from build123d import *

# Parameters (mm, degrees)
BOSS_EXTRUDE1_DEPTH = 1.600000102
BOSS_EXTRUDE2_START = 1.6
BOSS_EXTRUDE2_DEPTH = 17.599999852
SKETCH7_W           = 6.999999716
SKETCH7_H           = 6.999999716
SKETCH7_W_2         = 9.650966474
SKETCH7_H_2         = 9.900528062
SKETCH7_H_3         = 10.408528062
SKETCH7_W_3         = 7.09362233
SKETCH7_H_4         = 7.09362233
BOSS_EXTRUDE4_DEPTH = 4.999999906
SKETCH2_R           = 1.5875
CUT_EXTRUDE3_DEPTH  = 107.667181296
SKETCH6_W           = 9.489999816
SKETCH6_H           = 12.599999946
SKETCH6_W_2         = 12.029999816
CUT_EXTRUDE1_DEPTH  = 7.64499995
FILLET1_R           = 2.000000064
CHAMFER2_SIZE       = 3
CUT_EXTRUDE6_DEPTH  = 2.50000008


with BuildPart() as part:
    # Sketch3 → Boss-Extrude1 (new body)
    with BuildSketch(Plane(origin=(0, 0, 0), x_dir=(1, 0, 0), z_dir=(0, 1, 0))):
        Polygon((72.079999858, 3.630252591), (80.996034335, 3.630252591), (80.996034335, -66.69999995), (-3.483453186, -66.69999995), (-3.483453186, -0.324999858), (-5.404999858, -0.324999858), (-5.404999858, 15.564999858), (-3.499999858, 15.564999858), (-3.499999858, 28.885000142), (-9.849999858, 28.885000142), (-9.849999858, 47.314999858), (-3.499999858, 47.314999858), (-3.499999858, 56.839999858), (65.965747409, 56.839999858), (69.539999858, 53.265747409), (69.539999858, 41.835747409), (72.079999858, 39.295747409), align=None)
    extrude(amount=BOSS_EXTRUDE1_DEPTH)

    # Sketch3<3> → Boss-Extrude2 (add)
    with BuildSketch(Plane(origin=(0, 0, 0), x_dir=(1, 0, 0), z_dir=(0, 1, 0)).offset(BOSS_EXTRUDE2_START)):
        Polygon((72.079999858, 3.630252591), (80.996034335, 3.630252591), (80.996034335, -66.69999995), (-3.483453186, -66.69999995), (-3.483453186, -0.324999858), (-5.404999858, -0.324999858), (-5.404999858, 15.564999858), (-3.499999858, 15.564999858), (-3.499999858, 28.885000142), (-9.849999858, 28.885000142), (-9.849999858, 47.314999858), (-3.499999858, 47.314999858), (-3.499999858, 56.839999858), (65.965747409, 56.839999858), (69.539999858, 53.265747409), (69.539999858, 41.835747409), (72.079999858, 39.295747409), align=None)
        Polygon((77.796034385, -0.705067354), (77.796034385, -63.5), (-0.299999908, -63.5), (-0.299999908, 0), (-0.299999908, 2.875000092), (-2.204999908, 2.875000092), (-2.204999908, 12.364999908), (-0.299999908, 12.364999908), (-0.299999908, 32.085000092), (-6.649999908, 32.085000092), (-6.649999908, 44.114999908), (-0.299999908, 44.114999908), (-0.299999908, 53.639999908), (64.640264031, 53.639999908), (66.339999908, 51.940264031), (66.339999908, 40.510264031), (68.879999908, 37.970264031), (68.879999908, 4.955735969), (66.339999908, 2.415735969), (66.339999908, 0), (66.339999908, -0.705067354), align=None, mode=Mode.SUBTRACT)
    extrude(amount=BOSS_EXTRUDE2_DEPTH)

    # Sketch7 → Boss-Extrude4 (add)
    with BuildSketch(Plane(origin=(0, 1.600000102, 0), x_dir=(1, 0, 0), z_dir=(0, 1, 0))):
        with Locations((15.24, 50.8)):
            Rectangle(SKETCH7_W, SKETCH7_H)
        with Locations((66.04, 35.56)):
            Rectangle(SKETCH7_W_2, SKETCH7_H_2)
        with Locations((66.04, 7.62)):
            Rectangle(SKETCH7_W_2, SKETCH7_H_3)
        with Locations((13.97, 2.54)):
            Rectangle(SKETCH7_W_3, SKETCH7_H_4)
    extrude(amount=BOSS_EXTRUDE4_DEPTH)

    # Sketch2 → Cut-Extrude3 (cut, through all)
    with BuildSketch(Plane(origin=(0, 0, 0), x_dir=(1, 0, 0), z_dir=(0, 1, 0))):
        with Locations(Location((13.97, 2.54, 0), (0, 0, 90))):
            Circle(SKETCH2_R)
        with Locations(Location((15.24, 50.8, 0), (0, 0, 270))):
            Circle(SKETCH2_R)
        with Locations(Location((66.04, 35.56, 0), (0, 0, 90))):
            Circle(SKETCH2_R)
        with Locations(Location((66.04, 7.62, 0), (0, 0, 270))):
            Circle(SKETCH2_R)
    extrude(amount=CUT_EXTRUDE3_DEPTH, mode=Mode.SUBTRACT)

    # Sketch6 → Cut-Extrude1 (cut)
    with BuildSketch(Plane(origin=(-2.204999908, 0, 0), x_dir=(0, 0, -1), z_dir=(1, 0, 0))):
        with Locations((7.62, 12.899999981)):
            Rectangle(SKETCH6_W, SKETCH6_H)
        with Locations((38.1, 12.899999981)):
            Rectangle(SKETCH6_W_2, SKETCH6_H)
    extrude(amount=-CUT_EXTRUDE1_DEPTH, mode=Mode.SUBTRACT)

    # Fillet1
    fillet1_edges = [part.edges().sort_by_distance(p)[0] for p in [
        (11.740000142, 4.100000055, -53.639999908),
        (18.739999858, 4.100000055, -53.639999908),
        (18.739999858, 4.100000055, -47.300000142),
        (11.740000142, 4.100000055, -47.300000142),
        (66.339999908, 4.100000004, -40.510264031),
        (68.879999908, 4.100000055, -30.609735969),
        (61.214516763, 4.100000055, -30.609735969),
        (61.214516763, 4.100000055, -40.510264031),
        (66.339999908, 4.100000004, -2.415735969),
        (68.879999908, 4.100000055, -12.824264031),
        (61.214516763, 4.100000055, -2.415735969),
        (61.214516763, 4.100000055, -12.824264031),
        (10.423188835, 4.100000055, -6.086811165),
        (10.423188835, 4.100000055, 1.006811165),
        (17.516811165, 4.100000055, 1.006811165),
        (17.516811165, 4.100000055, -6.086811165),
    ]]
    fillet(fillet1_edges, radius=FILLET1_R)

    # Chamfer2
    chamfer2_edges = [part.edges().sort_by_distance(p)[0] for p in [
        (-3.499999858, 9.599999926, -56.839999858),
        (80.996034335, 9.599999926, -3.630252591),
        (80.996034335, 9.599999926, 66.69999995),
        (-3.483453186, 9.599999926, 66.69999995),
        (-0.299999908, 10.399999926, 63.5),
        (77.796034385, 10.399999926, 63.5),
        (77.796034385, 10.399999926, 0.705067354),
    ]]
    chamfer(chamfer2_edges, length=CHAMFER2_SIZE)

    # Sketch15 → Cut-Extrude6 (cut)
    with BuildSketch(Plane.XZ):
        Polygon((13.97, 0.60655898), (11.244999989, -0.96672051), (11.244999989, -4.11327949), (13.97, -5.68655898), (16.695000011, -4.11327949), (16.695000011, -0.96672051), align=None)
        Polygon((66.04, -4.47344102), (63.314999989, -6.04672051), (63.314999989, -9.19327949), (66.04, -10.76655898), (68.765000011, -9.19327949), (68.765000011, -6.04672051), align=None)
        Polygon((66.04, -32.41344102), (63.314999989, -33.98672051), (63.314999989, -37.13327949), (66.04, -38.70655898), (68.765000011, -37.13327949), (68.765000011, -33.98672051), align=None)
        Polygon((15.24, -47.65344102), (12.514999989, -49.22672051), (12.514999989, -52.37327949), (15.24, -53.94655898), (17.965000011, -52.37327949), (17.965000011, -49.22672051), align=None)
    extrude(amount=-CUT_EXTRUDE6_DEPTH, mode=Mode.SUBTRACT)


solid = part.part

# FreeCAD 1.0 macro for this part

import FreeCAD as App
import Part
import Sketcher
Q = App.Units.Quantity


def edges_at(feature, points):
    """Names of the edges that pass closest to the given points."""
    edges = feature.Shape.Edges
    near = lambda p: min(range(len(edges)), key=lambda i: edges[i].distToShape(Part.Vertex(*p))[0])
    return sorted({f"Edge{near(p) + 1}" for p in points})

doc = App.newDocument("Part")
params = doc.addObject("Spreadsheet::Sheet", "Params")
for row, (alias, value) in enumerate([
    ("sketch1_width", "6.35 mm"),
    ("sketch1_height", "11.43 mm"),
    ("sketch1_height2", "18.43 mm"),
    ("sketch1_height3", "13.32 mm"),
    ("sketch1_height4", "15.89 mm"),
    ("pad1_length", "1.6 mm"),
    ("sketch2_width", "6.35 mm"),
    ("sketch2_height", "11.43 mm"),
    ("sketch2_height2", "18.43 mm"),
    ("sketch2_height3", "13.32 mm"),
    ("sketch2_height4", "15.89 mm"),
    ("pad2_length", "17.6 mm"),
    ("sketch3_width", "7 mm"),
    ("pad3_length", "5 mm"),
    ("sketch5_width", "12.6 mm"),
    ("sketch5_height", "9.49 mm"),
    ("sketch5_height2", "12.03 mm"),
    ("pocket2_length", "7.645 mm"),
    ("fillet_radius", "2 mm"),
    ("chamfer_size", "3 mm"),
    ("pocket3_length", "2.5 mm"),
], start=1):
    params.set(f"A{row}", alias)
    params.set(f"B{row}", "=" + value)
    params.setAlias(f"B{row}", alias)

body = doc.addObject("PartDesign::Body", "Body")

# Sketch on XZ plane
sketch1 = body.newObject("Sketcher::SketchObject", "Sketch")
sketch1.AttachmentSupport = (doc.getObject("XZ_Plane"), [""])
sketch1.MapMode = "FlatFace"
sketch1.addGeometry(Part.LineSegment(App.Vector(81, -3.6, 0), App.Vector(72.1, -3.6, 0)), False)
sketch1.addGeometry(Part.LineSegment(App.Vector(72.1, -3.6, 0), App.Vector(72.1, -39.3, 0)), False)
sketch1.addGeometry(Part.LineSegment(App.Vector(72.1, -39.3, 0), App.Vector(69.5, -41.8, 0)), False)
sketch1.addGeometry(Part.LineSegment(App.Vector(69.5, -41.8, 0), App.Vector(69.5, -53.3, 0)), False)
sketch1.addGeometry(Part.LineSegment(App.Vector(69.5, -53.3, 0), App.Vector(66, -56.8, 0)), False)
sketch1.addGeometry(Part.LineSegment(App.Vector(66, -56.8, 0), App.Vector(-3.5, -56.8, 0)), False)
sketch1.addGeometry(Part.LineSegment(App.Vector(-3.5, -56.8, 0), App.Vector(-3.5, -47.3, 0)), False)
sketch1.addGeometry(Part.LineSegment(App.Vector(-3.5, -47.3, 0), App.Vector(-9.8, -47.3, 0)), False)
sketch1.addGeometry(Part.LineSegment(App.Vector(-9.8, -47.3, 0), App.Vector(-9.8, -28.9, 0)), False)
sketch1.addGeometry(Part.LineSegment(App.Vector(-9.8, -28.9, 0), App.Vector(-3.5, -28.9, 0)), False)
sketch1.addGeometry(Part.LineSegment(App.Vector(-3.5, -28.9, 0), App.Vector(-3.5, -15.6, 0)), False)
sketch1.addGeometry(Part.LineSegment(App.Vector(-3.5, -15.6, 0), App.Vector(-5.4, -15.6, 0)), False)
sketch1.addGeometry(Part.LineSegment(App.Vector(-5.4, -15.6, 0), App.Vector(-5.4, 0.3, 0)), False)
sketch1.addGeometry(Part.LineSegment(App.Vector(-5.4, 0.3, 0), App.Vector(-3.5, 0.3, 0)), False)
sketch1.addGeometry(Part.LineSegment(App.Vector(-3.5, 0.3, 0), App.Vector(-3.5, 66.7, 0)), False)
sketch1.addGeometry(Part.LineSegment(App.Vector(-3.5, 66.7, 0), App.Vector(81, 66.7, 0)), False)
sketch1.addGeometry(Part.LineSegment(App.Vector(81, 66.7, 0), App.Vector(81, -3.6, 0)), False)
sketch1.addConstraint(Sketcher.Constraint("Coincident", 0, 2, 1, 1))
sketch1.addConstraint(Sketcher.Constraint("Coincident", 1, 2, 2, 1))
sketch1.addConstraint(Sketcher.Constraint("Coincident", 2, 2, 3, 1))
sketch1.addConstraint(Sketcher.Constraint("Coincident", 3, 2, 4, 1))
sketch1.addConstraint(Sketcher.Constraint("Coincident", 4, 2, 5, 1))
sketch1.addConstraint(Sketcher.Constraint("Coincident", 5, 2, 6, 1))
sketch1.addConstraint(Sketcher.Constraint("Coincident", 6, 2, 7, 1))
sketch1.addConstraint(Sketcher.Constraint("Coincident", 7, 2, 8, 1))
sketch1.addConstraint(Sketcher.Constraint("Coincident", 8, 2, 9, 1))
sketch1.addConstraint(Sketcher.Constraint("Coincident", 9, 2, 10, 1))
sketch1.addConstraint(Sketcher.Constraint("Coincident", 10, 2, 11, 1))
sketch1.addConstraint(Sketcher.Constraint("Coincident", 11, 2, 12, 1))
sketch1.addConstraint(Sketcher.Constraint("Coincident", 12, 2, 13, 1))
sketch1.addConstraint(Sketcher.Constraint("Coincident", 13, 2, 14, 1))
sketch1.addConstraint(Sketcher.Constraint("Coincident", 14, 2, 15, 1))
sketch1.addConstraint(Sketcher.Constraint("Coincident", 15, 2, 16, 1))
sketch1.addConstraint(Sketcher.Constraint("Coincident", 16, 2, 0, 1))
sketch1.addConstraint(Sketcher.Constraint("Horizontal", 0))
sketch1.addConstraint(Sketcher.Constraint("Vertical", 1))
sketch1.addConstraint(Sketcher.Constraint("Vertical", 3))
sketch1.addConstraint(Sketcher.Constraint("Horizontal", 5))
sketch1.addConstraint(Sketcher.Constraint("Vertical", 6))
sketch1.addConstraint(Sketcher.Constraint("Horizontal", 7))
sketch1.addConstraint(Sketcher.Constraint("Vertical", 8))
sketch1.addConstraint(Sketcher.Constraint("Horizontal", 9))
sketch1.addConstraint(Sketcher.Constraint("Vertical", 10))
sketch1.addConstraint(Sketcher.Constraint("Horizontal", 11))
sketch1.addConstraint(Sketcher.Constraint("Vertical", 12))
sketch1.addConstraint(Sketcher.Constraint("Horizontal", 13))
sketch1.addConstraint(Sketcher.Constraint("Vertical", 14))
sketch1.addConstraint(Sketcher.Constraint("Horizontal", 15))
sketch1.addConstraint(Sketcher.Constraint("Vertical", 16))
sketch1.addConstraint(Sketcher.Constraint("Parallel", 2, 4))
sketch1.addConstraint(Sketcher.Constraint("Vertical", 6, 2, 9, 2))
sketch1.addConstraint(Sketcher.Constraint("Angle", 2, Q("-135 deg")))
sketch1.addConstraint(Sketcher.Constraint("DistanceX", 7, 2, 7, 1, 6.35))
sketch1.addConstraint(Sketcher.Constraint("DistanceY", 3, 2, 3, 1, 11.43))
sketch1.addConstraint(Sketcher.Constraint("DistanceY", 8, 1, 8, 2, 18.43))
sketch1.addConstraint(Sketcher.Constraint("DistanceY", 10, 1, 10, 2, 13.32))
sketch1.addConstraint(Sketcher.Constraint("DistanceY", 12, 1, 12, 2, 15.89))
sketch1.addConstraint(Sketcher.Constraint("DistanceX", 5, 2, -1, 1, 3.5))
sketch1.addConstraint(Sketcher.Constraint("DistanceY", -1, 1, 14, 2, 66.7))
sketch1.addConstraint(Sketcher.Constraint("DistanceX", 11, 2, 11, 1, 1.905))
sketch1.addConstraint(Sketcher.Constraint("DistanceY", 6, 1, 6, 2, 9.525))
sketch1.addConstraint(Sketcher.Constraint("DistanceY", 14, 1, 14, 2, 66.375))
sketch1.addConstraint(Sketcher.Constraint("DistanceX", -1, 1, 0, 2, 72.08))
sketch1.addConstraint(Sketcher.Constraint("DistanceX", -1, 1, 2, 2, 69.54))
sketch1.addConstraint(Sketcher.Constraint("DistanceX", 0, 2, 0, 1, 8.916034))
sketch1.addConstraint(Sketcher.Constraint("DistanceX", 5, 2, 5, 1, 69.465747))
sketch1.addConstraint(Sketcher.Constraint("DistanceX", 13, 1, 13, 2, 1.921547))
sketch1.addConstraint(Sketcher.Constraint("DistanceY", 1, 2, 1, 1, 35.665495))
sketch1.setExpression("Constraints[35]", "Params.sketch1_width")
sketch1.setExpression("Constraints[36]", "Params.sketch1_height")
sketch1.setExpression("Constraints[37]", "Params.sketch1_height2")
sketch1.setExpression("Constraints[38]", "Params.sketch1_height3")
sketch1.setExpression("Constraints[39]", "Params.sketch1_height4")
pad1 = body.newObject("PartDesign::Pad", "Pad")
pad1.Profile = sketch1
pad1.setExpression("Length", "Params.pad1_length")
pad1.Reversed = True

# Sketch on XZ plane
sketch2 = body.newObject("Sketcher::SketchObject", "Sketch001")
sketch2.AttachmentSupport = (doc.getObject("XZ_Plane"), [""])
sketch2.MapMode = "FlatFace"
sketch2.AttachmentOffset = App.Placement(App.Vector(0, 0, -1.6), App.Rotation())
sketch2.addGeometry(Part.LineSegment(App.Vector(81, -3.6, 0), App.Vector(72.1, -3.6, 0)), False)
sketch2.addGeometry(Part.LineSegment(App.Vector(72.1, -3.6, 0), App.Vector(72.1, -39.3, 0)), False)
sketch2.addGeometry(Part.LineSegment(App.Vector(72.1, -39.3, 0), App.Vector(69.5, -41.8, 0)), False)
sketch2.addGeometry(Part.LineSegment(App.Vector(69.5, -41.8, 0), App.Vector(69.5, -53.3, 0)), False)
sketch2.addGeometry(Part.LineSegment(App.Vector(69.5, -53.3, 0), App.Vector(66, -56.8, 0)), False)
sketch2.addGeometry(Part.LineSegment(App.Vector(66, -56.8, 0), App.Vector(-3.5, -56.8, 0)), False)
sketch2.addGeometry(Part.LineSegment(App.Vector(-3.5, -56.8, 0), App.Vector(-3.5, -47.3, 0)), False)
sketch2.addGeometry(Part.LineSegment(App.Vector(-3.5, -47.3, 0), App.Vector(-9.8, -47.3, 0)), False)
sketch2.addGeometry(Part.LineSegment(App.Vector(-9.8, -47.3, 0), App.Vector(-9.8, -28.9, 0)), False)
sketch2.addGeometry(Part.LineSegment(App.Vector(-9.8, -28.9, 0), App.Vector(-3.5, -28.9, 0)), False)
sketch2.addGeometry(Part.LineSegment(App.Vector(-3.5, -28.9, 0), App.Vector(-3.5, -15.6, 0)), False)
sketch2.addGeometry(Part.LineSegment(App.Vector(-3.5, -15.6, 0), App.Vector(-5.4, -15.6, 0)), False)
sketch2.addGeometry(Part.LineSegment(App.Vector(-5.4, -15.6, 0), App.Vector(-5.4, 0.3, 0)), False)
sketch2.addGeometry(Part.LineSegment(App.Vector(-5.4, 0.3, 0), App.Vector(-3.5, 0.3, 0)), False)
sketch2.addGeometry(Part.LineSegment(App.Vector(-3.5, 0.3, 0), App.Vector(-3.5, 66.7, 0)), False)
sketch2.addGeometry(Part.LineSegment(App.Vector(-3.5, 66.7, 0), App.Vector(81, 66.7, 0)), False)
sketch2.addGeometry(Part.LineSegment(App.Vector(81, 66.7, 0), App.Vector(81, -3.6, 0)), False)
sketch2.addGeometry(Part.LineSegment(App.Vector(77.8, 0.7, 0), App.Vector(77.8, 63.5, 0)), False)
sketch2.addGeometry(Part.LineSegment(App.Vector(77.8, 63.5, 0), App.Vector(-0.3, 63.5, 0)), False)
sketch2.addGeometry(Part.LineSegment(App.Vector(-0.3, 63.5, 0), App.Vector(-0.3, -2.9, 0)), False)
sketch2.addGeometry(Part.LineSegment(App.Vector(-0.3, -2.9, 0), App.Vector(-2.2, -2.9, 0)), False)
sketch2.addGeometry(Part.LineSegment(App.Vector(-2.2, -2.9, 0), App.Vector(-2.2, -12.4, 0)), False)
sketch2.addGeometry(Part.LineSegment(App.Vector(-2.2, -12.4, 0), App.Vector(-0.3, -12.4, 0)), False)
sketch2.addGeometry(Part.LineSegment(App.Vector(-0.3, -12.4, 0), App.Vector(-0.3, -32.1, 0)), False)
sketch2.addGeometry(Part.LineSegment(App.Vector(-0.3, -32.1, 0), App.Vector(-6.6, -32.1, 0)), False)
sketch2.addGeometry(Part.LineSegment(App.Vector(-6.6, -32.1, 0), App.Vector(-6.6, -44.1, 0)), False)
sketch2.addGeometry(Part.LineSegment(App.Vector(-6.6, -44.1, 0), App.Vector(-0.3, -44.1, 0)), False)
sketch2.addGeometry(Part.LineSegment(App.Vector(-0.3, -44.1, 0), App.Vector(-0.3, -53.6, 0)), False)
sketch2.addGeometry(Part.LineSegment(App.Vector(-0.3, -53.6, 0), App.Vector(64.6, -53.6, 0)), False)
sketch2.addGeometry(Part.LineSegment(App.Vector(64.6, -53.6, 0), App.Vector(66.3, -51.9, 0)), False)
sketch2.addGeometry(Part.LineSegment(App.Vector(66.3, -51.9, 0), App.Vector(66.3, -40.5, 0)), False)
sketch2.addGeometry(Part.LineSegment(App.Vector(66.3, -40.5, 0), App.Vector(68.9, -38, 0)), False)
sketch2.addGeometry(Part.LineSegment(App.Vector(68.9, -38, 0), App.Vector(68.9, -5, 0)), False)
sketch2.addGeometry(Part.LineSegment(App.Vector(68.9, -5, 0), App.Vector(66.3, -2.4, 0)), False)
sketch2.addGeometry(Part.LineSegment(App.Vector(66.3, -2.4, 0), App.Vector(66.3, 0.7, 0)), False)
sketch2.addGeometry(Part.LineSegment(App.Vector(66.3, 0.7, 0), App.Vector(77.8, 0.7, 0)), False)
sketch2.addConstraint(Sketcher.Constraint("Coincident", 0, 2, 1, 1))
sketch2.addConstraint(Sketcher.Constraint("Coincident", 1, 2, 2, 1))
sketch2.addConstraint(Sketcher.Constraint("Coincident", 2, 2, 3, 1))
sketch2.addConstraint(Sketcher.Constraint("Coincident", 3, 2, 4, 1))
sketch2.addConstraint(Sketcher.Constraint("Coincident", 4, 2, 5, 1))
sketch2.addConstraint(Sketcher.Constraint("Coincident", 5, 2, 6, 1))
sketch2.addConstraint(Sketcher.Constraint("Coincident", 6, 2, 7, 1))
sketch2.addConstraint(Sketcher.Constraint("Coincident", 7, 2, 8, 1))
sketch2.addConstraint(Sketcher.Constraint("Coincident", 8, 2, 9, 1))
sketch2.addConstraint(Sketcher.Constraint("Coincident", 9, 2, 10, 1))
sketch2.addConstraint(Sketcher.Constraint("Coincident", 10, 2, 11, 1))
sketch2.addConstraint(Sketcher.Constraint("Coincident", 11, 2, 12, 1))
sketch2.addConstraint(Sketcher.Constraint("Coincident", 12, 2, 13, 1))
sketch2.addConstraint(Sketcher.Constraint("Coincident", 13, 2, 14, 1))
sketch2.addConstraint(Sketcher.Constraint("Coincident", 14, 2, 15, 1))
sketch2.addConstraint(Sketcher.Constraint("Coincident", 15, 2, 16, 1))
sketch2.addConstraint(Sketcher.Constraint("Coincident", 16, 2, 0, 1))
sketch2.addConstraint(Sketcher.Constraint("Coincident", 17, 2, 18, 1))
sketch2.addConstraint(Sketcher.Constraint("Coincident", 18, 2, 19, 1))
sketch2.addConstraint(Sketcher.Constraint("Coincident", 19, 2, 20, 1))
sketch2.addConstraint(Sketcher.Constraint("Coincident", 20, 2, 21, 1))
sketch2.addConstraint(Sketcher.Constraint("Coincident", 21, 2, 22, 1))
sketch2.addConstraint(Sketcher.Constraint("Coincident", 22, 2, 23, 1))
sketch2.addConstraint(Sketcher.Constraint("Coincident", 23, 2, 24, 1))
sketch2.addConstraint(Sketcher.Constraint("Coincident", 24, 2, 25, 1))
sketch2.addConstraint(Sketcher.Constraint("Coincident", 25, 2, 26, 1))
sketch2.addConstraint(Sketcher.Constraint("Coincident", 26, 2, 27, 1))
sketch2.addConstraint(Sketcher.Constraint("Coincident", 27, 2, 28, 1))
sketch2.addConstraint(Sketcher.Constraint("Coincident", 28, 2, 29, 1))
sketch2.addConstraint(Sketcher.Constraint("Coincident", 29, 2, 30, 1))
sketch2.addConstraint(Sketcher.Constraint("Coincident", 30, 2, 31, 1))
sketch2.addConstraint(Sketcher.Constraint("Coincident", 31, 2, 32, 1))
sketch2.addConstraint(Sketcher.Constraint("Coincident", 32, 2, 33, 1))
sketch2.addConstraint(Sketcher.Constraint("Coincident", 33, 2, 34, 1))
sketch2.addConstraint(Sketcher.Constraint("Coincident", 34, 2, 35, 1))
sketch2.addConstraint(Sketcher.Constraint("Coincident", 35, 2, 17, 1))
sketch2.addConstraint(Sketcher.Constraint("Horizontal", 0))
sketch2.addConstraint(Sketcher.Constraint("Vertical", 1))
sketch2.addConstraint(Sketcher.Constraint("Vertical", 3))
sketch2.addConstraint(Sketcher.Constraint("Horizontal", 5))
sketch2.addConstraint(Sketcher.Constraint("Vertical", 6))
sketch2.addConstraint(Sketcher.Constraint("Horizontal", 7))
sketch2.addConstraint(Sketcher.Constraint("Vertical", 8))
sketch2.addConstraint(Sketcher.Constraint("Horizontal", 9))
sketch2.addConstraint(Sketcher.Constraint("Vertical", 10))
sketch2.addConstraint(Sketcher.Constraint("Horizontal", 11))
sketch2.addConstraint(Sketcher.Constraint("Vertical", 12))
sketch2.addConstraint(Sketcher.Constraint("Horizontal", 13))
sketch2.addConstraint(Sketcher.Constraint("Vertical", 14))
sketch2.addConstraint(Sketcher.Constraint("Horizontal", 15))
sketch2.addConstraint(Sketcher.Constraint("Vertical", 16))
sketch2.addConstraint(Sketcher.Constraint("Vertical", 17))
sketch2.addConstraint(Sketcher.Constraint("Horizontal", 18))
sketch2.addConstraint(Sketcher.Constraint("Vertical", 19))
sketch2.addConstraint(Sketcher.Constraint("Horizontal", 20))
sketch2.addConstraint(Sketcher.Constraint("Vertical", 21))
sketch2.addConstraint(Sketcher.Constraint("Horizontal", 22))
sketch2.addConstraint(Sketcher.Constraint("Vertical", 23))
sketch2.addConstraint(Sketcher.Constraint("Horizontal", 24))
sketch2.addConstraint(Sketcher.Constraint("Vertical", 25))
sketch2.addConstraint(Sketcher.Constraint("Horizontal", 26))
sketch2.addConstraint(Sketcher.Constraint("Vertical", 27))
sketch2.addConstraint(Sketcher.Constraint("Horizontal", 28))
sketch2.addConstraint(Sketcher.Constraint("Vertical", 30))
sketch2.addConstraint(Sketcher.Constraint("Vertical", 32))
sketch2.addConstraint(Sketcher.Constraint("Vertical", 34))
sketch2.addConstraint(Sketcher.Constraint("Horizontal", 35))
sketch2.addConstraint(Sketcher.Constraint("Parallel", 2, 4))
sketch2.addConstraint(Sketcher.Constraint("Parallel", 4, 29))
sketch2.addConstraint(Sketcher.Constraint("Parallel", 29, 31))
sketch2.addConstraint(Sketcher.Constraint("Perpendicular", 31, 33))
sketch2.addConstraint(Sketcher.Constraint("Vertical", 6, 2, 9, 2))
sketch2.addConstraint(Sketcher.Constraint("Vertical", 19, 2, 22, 2))
sketch2.addConstraint(Sketcher.Constraint("Vertical", 23, 2, 26, 2))
sketch2.addConstraint(Sketcher.Constraint("Vertical", 30, 2, 33, 2))
sketch2.addConstraint(Sketcher.Constraint("Equal", 11, 20))
sketch2.addConstraint(Sketcher.Constraint("Equal", 9, 24))
sketch2.addConstraint(Sketcher.Constraint("Equal", 14, 19))
sketch2.addConstraint(Sketcher.Constraint("Equal", 6, 27))
sketch2.addConstraint(Sketcher.Constraint("Equal", 3, 30))
sketch2.addConstraint(Sketcher.Constraint("Equal", 2, 31))
sketch2.addConstraint(Sketcher.Constraint("Equal", 31, 33))
sketch2.addConstraint(Sketcher.Constraint("DistanceX", 7, 2, 7, 1, 6.35))
sketch2.addConstraint(Sketcher.Constraint("DistanceY", 3, 2, 3, 1, 11.43))
sketch2.addConstraint(Sketcher.Constraint("DistanceY", 8, 1, 8, 2, 18.43))
sketch2.addConstraint(Sketcher.Constraint("DistanceY", 10, 1, 10, 2, 13.32))
sketch2.addConstraint(Sketcher.Constraint("DistanceY", 12, 1, 12, 2, 15.89))
sketch2.addConstraint(Sketcher.Constraint("DistanceY", 21, 2, 21, 1, 9.49))
sketch2.addConstraint(Sketcher.Constraint("DistanceY", 23, 2, 23, 1, 19.72))
sketch2.addConstraint(Sketcher.Constraint("DistanceY", 25, 2, 25, 1, 12.03))
sketch2.addConstraint(Sketcher.Constraint("DistanceX", 5, 2, -1, 1, 3.5))
sketch2.addConstraint(Sketcher.Constraint("DistanceY", -1, 1, 14, 2, 66.7))
sketch2.addConstraint(Sketcher.Constraint("DistanceY", -1, 1, 17, 2, 63.5))
sketch2.addConstraint(Sketcher.Constraint("DistanceX", 18, 2, -1, 1, 0.3))
sketch2.addConstraint(Sketcher.Constraint("DistanceX", 17, 2, 15, 2, 3.2))
sketch2.addConstraint(Sketcher.Constraint("DistanceX", 29, 2, 3, 2, 3.2))
sketch2.addConstraint(Sketcher.Constraint("DistanceX", 11, 2, 11, 1, 1.905))
sketch2.addConstraint(Sketcher.Constraint("DistanceY", 6, 1, 6, 2, 9.525))
sketch2.addConstraint(Sketcher.Constraint("DistanceY", 14, 1, 14, 2, 66.375))
sketch2.addConstraint(Sketcher.Constraint("DistanceX", -1, 1, 0, 2, 72.08))
sketch2.addConstraint(Sketcher.Constraint("DistanceX", -1, 1, 2, 2, 69.54))
sketch2.addConstraint(Sketcher.Constraint("DistanceY", 32, 1, 32, 2, 33.014528))
sketch2.addConstraint(Sketcher.Constraint("Distance", 29, 2.40379))
sketch2.addConstraint(Sketcher.Constraint("DistanceX", 0, 2, 0, 1, 8.916034))
sketch2.addConstraint(Sketcher.Constraint("DistanceX", 5, 2, 5, 1, 69.465747))
sketch2.addConstraint(Sketcher.Constraint("DistanceX", 13, 1, 13, 2, 1.921547))
sketch2.addConstraint(Sketcher.Constraint("DistanceY", 1, 2, 1, 1, 35.665495))
sketch2.addConstraint(Sketcher.Constraint("DistanceY", 17, 1, 17, 2, 62.794933))
sketch2.setExpression("Constraints[82]", "Params.sketch2_width")
sketch2.setExpression("Constraints[83]", "Params.sketch2_height")
sketch2.setExpression("Constraints[84]", "Params.sketch2_height2")
sketch2.setExpression("Constraints[85]", "Params.sketch2_height3")
sketch2.setExpression("Constraints[86]", "Params.sketch2_height4")
pad2 = body.newObject("PartDesign::Pad", "Pad001")
pad2.Profile = sketch2
pad2.setExpression("Length", "Params.pad2_length")
pad2.Reversed = True

# Sketch on XZ plane
sketch3 = body.newObject("Sketcher::SketchObject", "Sketch002")
sketch3.AttachmentSupport = (doc.getObject("XZ_Plane"), [""])
sketch3.MapMode = "FlatFace"
sketch3.AttachmentOffset = App.Placement(App.Vector(0, 0, -1.6), App.Rotation())
sketch3.addGeometry(Part.LineSegment(App.Vector(12, -54, 0), App.Vector(12, -47, 0)), False)
sketch3.addGeometry(Part.LineSegment(App.Vector(12, -47, 0), App.Vector(19, -47, 0)), False)
sketch3.addGeometry(Part.LineSegment(App.Vector(19, -47, 0), App.Vector(19, -54, 0)), False)
sketch3.addGeometry(Part.LineSegment(App.Vector(19, -54, 0), App.Vector(12, -54, 0)), False)
sketch3.addGeometry(Part.LineSegment(App.Vector(61, -41, 0), App.Vector(61, -31, 0)), False)
sketch3.addGeometry(Part.LineSegment(App.Vector(61, -31, 0), App.Vector(71, -31, 0)), False)
sketch3.addGeometry(Part.LineSegment(App.Vector(71, -31, 0), App.Vector(71, -41, 0)), False)
sketch3.addGeometry(Part.LineSegment(App.Vector(71, -41, 0), App.Vector(61, -41, 0)), False)
sketch3.addGeometry(Part.LineSegment(App.Vector(61, -13, 0), App.Vector(61, -2, 0)), False)
sketch3.addGeometry(Part.LineSegment(App.Vector(61, -2, 0), App.Vector(71, -2, 0)), False)
sketch3.addGeometry(Part.LineSegment(App.Vector(71, -2, 0), App.Vector(71, -13, 0)), False)
sketch3.addGeometry(Part.LineSegment(App.Vector(71, -13, 0), App.Vector(61, -13, 0)), False)
sketch3.addGeometry(Part.LineSegment(App.Vector(10, -6, 0), App.Vector(10, 1, 0)), False)
sketch3.addGeometry(Part.LineSegment(App.Vector(10, 1, 0), App.Vector(18, 1, 0)), False)
sketch3.addGeometry(Part.LineSegment(App.Vector(18, 1, 0), App.Vector(18, -6, 0)), False)
sketch3.addGeometry(Part.LineSegment(App.Vector(18, -6, 0), App.Vector(10, -6, 0)), False)
sketch3.addConstraint(Sketcher.Constraint("Coincident", 0, 2, 1, 1))
sketch3.addConstraint(Sketcher.Constraint("Coincident", 1, 2, 2, 1))
sketch3.addConstraint(Sketcher.Constraint("Coincident", 2, 2, 3, 1))
sketch3.addConstraint(Sketcher.Constraint("Coincident", 3, 2, 0, 1))
sketch3.addConstraint(Sketcher.Constraint("Coincident", 4, 2, 5, 1))
sketch3.addConstraint(Sketcher.Constraint("Coincident", 5, 2, 6, 1))
sketch3.addConstraint(Sketcher.Constraint("Coincident", 6, 2, 7, 1))
sketch3.addConstraint(Sketcher.Constraint("Coincident", 7, 2, 4, 1))
sketch3.addConstraint(Sketcher.Constraint("Coincident", 8, 2, 9, 1))
sketch3.addConstraint(Sketcher.Constraint("Coincident", 9, 2, 10, 1))
sketch3.addConstraint(Sketcher.Constraint("Coincident", 10, 2, 11, 1))
sketch3.addConstraint(Sketcher.Constraint("Coincident", 11, 2, 8, 1))
sketch3.addConstraint(Sketcher.Constraint("Coincident", 12, 2, 13, 1))
sketch3.addConstraint(Sketcher.Constraint("Coincident", 13, 2, 14, 1))
sketch3.addConstraint(Sketcher.Constraint("Coincident", 14, 2, 15, 1))
sketch3.addConstraint(Sketcher.Constraint("Coincident", 15, 2, 12, 1))
sketch3.addConstraint(Sketcher.Constraint("Vertical", 0))
sketch3.addConstraint(Sketcher.Constraint("Horizontal", 1))
sketch3.addConstraint(Sketcher.Constraint("Vertical", 2))
sketch3.addConstraint(Sketcher.Constraint("Horizontal", 3))
sketch3.addConstraint(Sketcher.Constraint("Vertical", 4))
sketch3.addConstraint(Sketcher.Constraint("Horizontal", 5))
sketch3.addConstraint(Sketcher.Constraint("Vertical", 6))
sketch3.addConstraint(Sketcher.Constraint("Horizontal", 7))
sketch3.addConstraint(Sketcher.Constraint("Vertical", 8))
sketch3.addConstraint(Sketcher.Constraint("Horizontal", 9))
sketch3.addConstraint(Sketcher.Constraint("Vertical", 10))
sketch3.addConstraint(Sketcher.Constraint("Horizontal", 11))
sketch3.addConstraint(Sketcher.Constraint("Vertical", 12))
sketch3.addConstraint(Sketcher.Constraint("Horizontal", 13))
sketch3.addConstraint(Sketcher.Constraint("Vertical", 14))
sketch3.addConstraint(Sketcher.Constraint("Horizontal", 15))
sketch3.addConstraint(Sketcher.Constraint("Vertical", 7, 2, 8, 2))
sketch3.addConstraint(Sketcher.Constraint("Vertical", 6, 2, 9, 2))
sketch3.addConstraint(Sketcher.Constraint("Equal", 3, 0))
sketch3.addConstraint(Sketcher.Constraint("Equal", 15, 12))
sketch3.addConstraint(Sketcher.Constraint("DistanceX", 1, 1, 1, 2, 7.0))
sketch3.addConstraint(Sketcher.Constraint("DistanceY", 0, 2, -1, 1, 47.3))
sketch3.addConstraint(Sketcher.Constraint("DistanceX", -1, 1, 0, 2, 11.74))
sketch3.addConstraint(Sketcher.Constraint("DistanceY", 4, 2, 8, 2, 28.194))
sketch3.addConstraint(Sketcher.Constraint("DistanceY", 6, 2, 10, 2, 27.686))
sketch3.addConstraint(Sketcher.Constraint("DistanceY", 4, 1, 4, 2, 9.900528))
sketch3.addConstraint(Sketcher.Constraint("DistanceX", 5, 1, 5, 2, 9.650966))
sketch3.addConstraint(Sketcher.Constraint("DistanceX", 13, 1, 13, 2, 7.093622))
sketch3.addConstraint(Sketcher.Constraint("DistanceX", -1, 1, 12, 2, 10.423189))
sketch3.addConstraint(Sketcher.Constraint("DistanceY", -1, 1, 12, 2, 1.006811))
sketch3.addConstraint(Sketcher.Constraint("DistanceX", -1, 1, 4, 2, 61.214517))
sketch3.addConstraint(Sketcher.Constraint("DistanceY", 4, 2, -1, 1, 30.609736))
sketch3.setExpression("Constraints[36]", "Params.sketch3_width")
pad3 = body.newObject("PartDesign::Pad", "Pad002")
pad3.Profile = sketch3
pad3.setExpression("Length", "Params.pad3_length")
pad3.Reversed = True

# Sketch on XZ plane
sketch4 = body.newObject("Sketcher::SketchObject", "Sketch003")
sketch4.AttachmentSupport = (doc.getObject("XZ_Plane"), [""])
sketch4.MapMode = "FlatFace"
sketch4.addGeometry(Part.Circle(App.Vector(14, -2.5, 0), App.Vector(0, 0, 1), 1.6), False)
sketch4.addGeometry(Part.Circle(App.Vector(15.2, -50.8, 0), App.Vector(0, 0, 1), 1.6), False)
sketch4.addGeometry(Part.Circle(App.Vector(66, -35.6, 0), App.Vector(0, 0, 1), 1.6), False)
sketch4.addGeometry(Part.Circle(App.Vector(66, -7.6, 0), App.Vector(0, 0, 1), 1.6), False)
sketch4.addConstraint(Sketcher.Constraint("Equal", 0, 1))
sketch4.addConstraint(Sketcher.Constraint("Equal", 1, 2))
sketch4.addConstraint(Sketcher.Constraint("Equal", 2, 3))
sketch4.addConstraint(Sketcher.Constraint("Vertical", 2, 3, 3, 3))
sketch4.addConstraint(Sketcher.Constraint("Diameter", 0, 3.175))
sketch4.addConstraint(Sketcher.Constraint("DistanceY", 1, 3, -1, 1, 50.8))
sketch4.addConstraint(Sketcher.Constraint("DistanceX", 1, 3, 2, 3, 50.8))
sketch4.addConstraint(Sketcher.Constraint("DistanceX", -1, 1, 0, 3, 13.97))
sketch4.addConstraint(Sketcher.Constraint("DistanceY", 0, 3, -1, 1, 2.54))
sketch4.addConstraint(Sketcher.Constraint("DistanceX", -1, 1, 1, 3, 15.24))
sketch4.addConstraint(Sketcher.Constraint("DistanceY", 2, 3, -1, 1, 35.56))
sketch4.addConstraint(Sketcher.Constraint("DistanceY", 3, 3, -1, 1, 7.62))
pocket1 = body.newObject("PartDesign::Pocket", "Pocket")
pocket1.Profile = sketch4
pocket1.Type = "ThroughAll"

# Sketch on YZ plane
sketch5 = body.newObject("Sketcher::SketchObject", "Sketch004")
sketch5.AttachmentSupport = (doc.getObject("YZ_Plane"), [""])
sketch5.MapMode = "FlatFace"
sketch5.AttachmentOffset = App.Placement(App.Vector(0, 0, -2.205), App.Rotation())
sketch5.addGeometry(Part.LineSegment(App.Vector(19, -3, 0), App.Vector(7, -3, 0)), False)
sketch5.addGeometry(Part.LineSegment(App.Vector(7, -3, 0), App.Vector(7, -12, 0)), False)
sketch5.addGeometry(Part.LineSegment(App.Vector(7, -12, 0), App.Vector(19, -12, 0)), False)
sketch5.addGeometry(Part.LineSegment(App.Vector(19, -12, 0), App.Vector(19, -3, 0)), False)
sketch5.addGeometry(Part.LineSegment(App.Vector(19, -32, 0), App.Vector(7, -32, 0)), False)
sketch5.addGeometry(Part.LineSegment(App.Vector(7, -32, 0), App.Vector(7, -44, 0)), False)
sketch5.addGeometry(Part.LineSegment(App.Vector(7, -44, 0), App.Vector(19, -44, 0)), False)
sketch5.addGeometry(Part.LineSegment(App.Vector(19, -44, 0), App.Vector(19, -32, 0)), False)
sketch5.addConstraint(Sketcher.Constraint("Coincident", 0, 2, 1, 1))
sketch5.addConstraint(Sketcher.Constraint("Coincident", 1, 2, 2, 1))
sketch5.addConstraint(Sketcher.Constraint("Coincident", 2, 2, 3, 1))
sketch5.addConstraint(Sketcher.Constraint("Coincident", 3, 2, 0, 1))
sketch5.addConstraint(Sketcher.Constraint("Coincident", 4, 2, 5, 1))
sketch5.addConstraint(Sketcher.Constraint("Coincident", 5, 2, 6, 1))
sketch5.addConstraint(Sketcher.Constraint("Coincident", 6, 2, 7, 1))
sketch5.addConstraint(Sketcher.Constraint("Coincident", 7, 2, 4, 1))
sketch5.addConstraint(Sketcher.Constraint("Horizontal", 0))
sketch5.addConstraint(Sketcher.Constraint("Vertical", 1))
sketch5.addConstraint(Sketcher.Constraint("Horizontal", 2))
sketch5.addConstraint(Sketcher.Constraint("Vertical", 3))
sketch5.addConstraint(Sketcher.Constraint("Horizontal", 4))
sketch5.addConstraint(Sketcher.Constraint("Vertical", 5))
sketch5.addConstraint(Sketcher.Constraint("Horizontal", 6))
sketch5.addConstraint(Sketcher.Constraint("Vertical", 7))
sketch5.addConstraint(Sketcher.Constraint("Vertical", 1, 2, 4, 2))
sketch5.addConstraint(Sketcher.Constraint("Vertical", 3, 2, 6, 2))
sketch5.addConstraint(Sketcher.Constraint("DistanceX", 0, 2, 0, 1, 12.6))
sketch5.addConstraint(Sketcher.Constraint("DistanceY", 1, 2, 1, 1, 9.49))
sketch5.addConstraint(Sketcher.Constraint("DistanceY", 5, 2, 5, 1, 12.03))
sketch5.addConstraint(Sketcher.Constraint("DistanceX", -1, 1, 0, 2, 6.6))
sketch5.addConstraint(Sketcher.Constraint("DistanceY", 4, 2, 1, 2, 19.72))
sketch5.addConstraint(Sketcher.Constraint("DistanceY", 0, 2, -1, 1, 2.875))
sketch5.setExpression("Constraints[18]", "Params.sketch5_width")
sketch5.setExpression("Constraints[19]", "Params.sketch5_height")
sketch5.setExpression("Constraints[20]", "Params.sketch5_height2")
pocket2 = body.newObject("PartDesign::Pocket", "Pocket001")
pocket2.Profile = sketch5
pocket2.setExpression("Length", "Params.pocket2_length")
doc.recompute()

fillet = body.newObject("PartDesign::Fillet", "Fillet")
fillet.Base = (pocket2, edges_at(pocket2, [
    (11.74, 4.1, -53.64),
    (18.74, 4.1, -53.64),
    (18.74, 4.1, -47.3),
    (11.74, 4.1, -47.3),
    (66.34, 4.1, -40.51),
    (68.88, 4.1, -30.61),
    (61.215, 4.1, -30.61),
    (61.215, 4.1, -40.51),
    (66.34, 4.1, -2.416),
    (68.88, 4.1, -12.824),
    (61.215, 4.1, -2.416),
    (61.215, 4.1, -12.824),
    (10.423, 4.1, -6.087),
    (10.423, 4.1, 1.007),
    (17.517, 4.1, 1.007),
    (17.517, 4.1, -6.087),
]))
fillet.setExpression("Radius", "Params.fillet_radius")
doc.recompute()

chamfer = body.newObject("PartDesign::Chamfer", "Chamfer")
chamfer.Base = (fillet, edges_at(fillet, [
    (-3.5, 9.6, -56.84),
    (80.996, 9.6, -3.63),
    (80.996, 9.6, 66.7),
    (-3.483, 9.6, 66.7),
    (-0.3, 10.4, 63.5),
    (77.796, 10.4, 63.5),
    (77.796, 10.4, 0.705),
]))
chamfer.setExpression("Size", "Params.chamfer_size")

# Sketch on XZ plane
sketch6 = body.newObject("Sketcher::SketchObject", "Sketch005")
sketch6.AttachmentSupport = (doc.getObject("XZ_Plane"), [""])
sketch6.MapMode = "FlatFace"
sketch6.addGeometry(Part.LineSegment(App.Vector(14, 0.6, 0), App.Vector(11.2, -1, 0)), False)
sketch6.addGeometry(Part.LineSegment(App.Vector(11.2, -1, 0), App.Vector(11.2, -4.1, 0)), False)
sketch6.addGeometry(Part.LineSegment(App.Vector(11.2, -4.1, 0), App.Vector(14, -5.7, 0)), False)
sketch6.addGeometry(Part.LineSegment(App.Vector(14, -5.7, 0), App.Vector(16.7, -4.1, 0)), False)
sketch6.addGeometry(Part.LineSegment(App.Vector(16.7, -4.1, 0), App.Vector(16.7, -1, 0)), False)
sketch6.addGeometry(Part.LineSegment(App.Vector(16.7, -1, 0), App.Vector(14, 0.6, 0)), False)
sketch6.addGeometry(Part.LineSegment(App.Vector(66, -4.5, 0), App.Vector(63.3, -6, 0)), False)
sketch6.addGeometry(Part.LineSegment(App.Vector(63.3, -6, 0), App.Vector(63.3, -9.2, 0)), False)
sketch6.addGeometry(Part.LineSegment(App.Vector(63.3, -9.2, 0), App.Vector(66, -10.8, 0)), False)
sketch6.addGeometry(Part.LineSegment(App.Vector(66, -10.8, 0), App.Vector(68.8, -9.2, 0)), False)
sketch6.addGeometry(Part.LineSegment(App.Vector(68.8, -9.2, 0), App.Vector(68.8, -6, 0)), False)
sketch6.addGeometry(Part.LineSegment(App.Vector(68.8, -6, 0), App.Vector(66, -4.5, 0)), False)
sketch6.addGeometry(Part.LineSegment(App.Vector(66, -32.4, 0), App.Vector(63.3, -34, 0)), False)
sketch6.addGeometry(Part.LineSegment(App.Vector(63.3, -34, 0), App.Vector(63.3, -37.1, 0)), False)
sketch6.addGeometry(Part.LineSegment(App.Vector(63.3, -37.1, 0), App.Vector(66, -38.7, 0)), False)
sketch6.addGeometry(Part.LineSegment(App.Vector(66, -38.7, 0), App.Vector(68.8, -37.1, 0)), False)
sketch6.addGeometry(Part.LineSegment(App.Vector(68.8, -37.1, 0), App.Vector(68.8, -34, 0)), False)
sketch6.addGeometry(Part.LineSegment(App.Vector(68.8, -34, 0), App.Vector(66, -32.4, 0)), False)
sketch6.addGeometry(Part.LineSegment(App.Vector(15.2, -47.7, 0), App.Vector(12.5, -49.2, 0)), False)
sketch6.addGeometry(Part.LineSegment(App.Vector(12.5, -49.2, 0), App.Vector(12.5, -52.4, 0)), False)
sketch6.addGeometry(Part.LineSegment(App.Vector(12.5, -52.4, 0), App.Vector(15.2, -53.9, 0)), False)
sketch6.addGeometry(Part.LineSegment(App.Vector(15.2, -53.9, 0), App.Vector(18, -52.4, 0)), False)
sketch6.addGeometry(Part.LineSegment(App.Vector(18, -52.4, 0), App.Vector(18, -49.2, 0)), False)
sketch6.addGeometry(Part.LineSegment(App.Vector(18, -49.2, 0), App.Vector(15.2, -47.7, 0)), False)
sketch6.addConstraint(Sketcher.Constraint("Coincident", 0, 2, 1, 1))
sketch6.addConstraint(Sketcher.Constraint("Coincident", 1, 2, 2, 1))
sketch6.addConstraint(Sketcher.Constraint("Coincident", 2, 2, 3, 1))
sketch6.addConstraint(Sketcher.Constraint("Coincident", 3, 2, 4, 1))
sketch6.addConstraint(Sketcher.Constraint("Coincident", 4, 2, 5, 1))
sketch6.addConstraint(Sketcher.Constraint("Coincident", 5, 2, 0, 1))
sketch6.addConstraint(Sketcher.Constraint("Coincident", 6, 2, 7, 1))
sketch6.addConstraint(Sketcher.Constraint("Coincident", 7, 2, 8, 1))
sketch6.addConstraint(Sketcher.Constraint("Coincident", 8, 2, 9, 1))
sketch6.addConstraint(Sketcher.Constraint("Coincident", 9, 2, 10, 1))
sketch6.addConstraint(Sketcher.Constraint("Coincident", 10, 2, 11, 1))
sketch6.addConstraint(Sketcher.Constraint("Coincident", 11, 2, 6, 1))
sketch6.addConstraint(Sketcher.Constraint("Coincident", 12, 2, 13, 1))
sketch6.addConstraint(Sketcher.Constraint("Coincident", 13, 2, 14, 1))
sketch6.addConstraint(Sketcher.Constraint("Coincident", 14, 2, 15, 1))
sketch6.addConstraint(Sketcher.Constraint("Coincident", 15, 2, 16, 1))
sketch6.addConstraint(Sketcher.Constraint("Coincident", 16, 2, 17, 1))
sketch6.addConstraint(Sketcher.Constraint("Coincident", 17, 2, 12, 1))
sketch6.addConstraint(Sketcher.Constraint("Coincident", 18, 2, 19, 1))
sketch6.addConstraint(Sketcher.Constraint("Coincident", 19, 2, 20, 1))
sketch6.addConstraint(Sketcher.Constraint("Coincident", 20, 2, 21, 1))
sketch6.addConstraint(Sketcher.Constraint("Coincident", 21, 2, 22, 1))
sketch6.addConstraint(Sketcher.Constraint("Coincident", 22, 2, 23, 1))
sketch6.addConstraint(Sketcher.Constraint("Coincident", 23, 2, 18, 1))
sketch6.addConstraint(Sketcher.Constraint("Vertical", 1))
sketch6.addConstraint(Sketcher.Constraint("Vertical", 4))
sketch6.addConstraint(Sketcher.Constraint("Vertical", 7))
sketch6.addConstraint(Sketcher.Constraint("Vertical", 10))
sketch6.addConstraint(Sketcher.Constraint("Vertical", 13))
sketch6.addConstraint(Sketcher.Constraint("Vertical", 16))
sketch6.addConstraint(Sketcher.Constraint("Vertical", 19))
sketch6.addConstraint(Sketcher.Constraint("Vertical", 22))
sketch6.addConstraint(Sketcher.Constraint("Parallel", 0, 3))
sketch6.addConstraint(Sketcher.Constraint("Parallel", 2, 5))
sketch6.addConstraint(Sketcher.Constraint("Parallel", 3, 6))
sketch6.addConstraint(Sketcher.Constraint("Parallel", 5, 8))
sketch6.addConstraint(Sketcher.Constraint("Parallel", 6, 9))
sketch6.addConstraint(Sketcher.Constraint("Parallel", 8, 11))
sketch6.addConstraint(Sketcher.Constraint("Parallel", 9, 12))
sketch6.addConstraint(Sketcher.Constraint("Parallel", 11, 14))
sketch6.addConstraint(Sketcher.Constraint("Parallel", 12, 15))
sketch6.addConstraint(Sketcher.Constraint("Parallel", 14, 17))
sketch6.addConstraint(Sketcher.Constraint("Parallel", 15, 18))
sketch6.addConstraint(Sketcher.Constraint("Parallel", 17, 20))
sketch6.addConstraint(Sketcher.Constraint("Parallel", 18, 21))
sketch6.addConstraint(Sketcher.Constraint("Parallel", 20, 23))
sketch6.addConstraint(Sketcher.Constraint("Horizontal", 1, 2, 3, 2))
sketch6.addConstraint(Sketcher.Constraint("Horizontal", 0, 2, 4, 2))
sketch6.addConstraint(Sketcher.Constraint("Horizontal", 7, 2, 9, 2))
sketch6.addConstraint(Sketcher.Constraint("Horizontal", 6, 2, 10, 2))
sketch6.addConstraint(Sketcher.Constraint("Horizontal", 13, 2, 15, 2))
sketch6.addConstraint(Sketcher.Constraint("Horizontal", 12, 2, 16, 2))
sketch6.addConstraint(Sketcher.Constraint("Horizontal", 19, 2, 21, 2))
sketch6.addConstraint(Sketcher.Constraint("Horizontal", 18, 2, 22, 2))
sketch6.addConstraint(Sketcher.Constraint("Vertical", 2, 2, 5, 2))
sketch6.addConstraint(Sketcher.Constraint("Vertical", 7, 2, 12, 2))
sketch6.addConstraint(Sketcher.Constraint("Vertical", 11, 2, 14, 2))
sketch6.addConstraint(Sketcher.Constraint("Equal", 4, 7))
sketch6.addConstraint(Sketcher.Constraint("Equal", 10, 13))
sketch6.addConstraint(Sketcher.Constraint("Equal", 16, 19))
sketch6.addConstraint(Sketcher.Constraint("Equal", 5, 6))
sketch6.addConstraint(Sketcher.Constraint("Equal", 17, 18))
sketch6.addConstraint(Sketcher.Constraint("Angle", 0, Q("-150 deg")))
sketch6.addConstraint(Sketcher.Constraint("DistanceX", -1, 1, 2, 2, 13.97))
sketch6.addConstraint(Sketcher.Constraint("DistanceX", -1, 1, 8, 2, 66.04))
sketch6.addConstraint(Sketcher.Constraint("DistanceX", -1, 1, 20, 2, 15.24))
sketch6.addConstraint(Sketcher.Constraint("DistanceX", 1, 2, 3, 2, 5.45))
sketch6.addConstraint(Sketcher.Constraint("DistanceY", 6, 2, 4, 2, 5.08))
sketch6.addConstraint(Sketcher.Constraint("DistanceY", 12, 2, 6, 2, 27.94))
sketch6.addConstraint(Sketcher.Constraint("DistanceY", 18, 2, 0, 2, 48.26))
sketch6.addConstraint(Sketcher.Constraint("DistanceY", 1, 2, 1, 1, 3.146559))
sketch6.addConstraint(Sketcher.Constraint("DistanceY", 0, 2, -1, 1, 0.966721))
pocket3 = body.newObject("PartDesign::Pocket", "Pocket002")
pocket3.Profile = sketch6
pocket3.setExpression("Length", "Params.pocket3_length")

doc.recompute()
